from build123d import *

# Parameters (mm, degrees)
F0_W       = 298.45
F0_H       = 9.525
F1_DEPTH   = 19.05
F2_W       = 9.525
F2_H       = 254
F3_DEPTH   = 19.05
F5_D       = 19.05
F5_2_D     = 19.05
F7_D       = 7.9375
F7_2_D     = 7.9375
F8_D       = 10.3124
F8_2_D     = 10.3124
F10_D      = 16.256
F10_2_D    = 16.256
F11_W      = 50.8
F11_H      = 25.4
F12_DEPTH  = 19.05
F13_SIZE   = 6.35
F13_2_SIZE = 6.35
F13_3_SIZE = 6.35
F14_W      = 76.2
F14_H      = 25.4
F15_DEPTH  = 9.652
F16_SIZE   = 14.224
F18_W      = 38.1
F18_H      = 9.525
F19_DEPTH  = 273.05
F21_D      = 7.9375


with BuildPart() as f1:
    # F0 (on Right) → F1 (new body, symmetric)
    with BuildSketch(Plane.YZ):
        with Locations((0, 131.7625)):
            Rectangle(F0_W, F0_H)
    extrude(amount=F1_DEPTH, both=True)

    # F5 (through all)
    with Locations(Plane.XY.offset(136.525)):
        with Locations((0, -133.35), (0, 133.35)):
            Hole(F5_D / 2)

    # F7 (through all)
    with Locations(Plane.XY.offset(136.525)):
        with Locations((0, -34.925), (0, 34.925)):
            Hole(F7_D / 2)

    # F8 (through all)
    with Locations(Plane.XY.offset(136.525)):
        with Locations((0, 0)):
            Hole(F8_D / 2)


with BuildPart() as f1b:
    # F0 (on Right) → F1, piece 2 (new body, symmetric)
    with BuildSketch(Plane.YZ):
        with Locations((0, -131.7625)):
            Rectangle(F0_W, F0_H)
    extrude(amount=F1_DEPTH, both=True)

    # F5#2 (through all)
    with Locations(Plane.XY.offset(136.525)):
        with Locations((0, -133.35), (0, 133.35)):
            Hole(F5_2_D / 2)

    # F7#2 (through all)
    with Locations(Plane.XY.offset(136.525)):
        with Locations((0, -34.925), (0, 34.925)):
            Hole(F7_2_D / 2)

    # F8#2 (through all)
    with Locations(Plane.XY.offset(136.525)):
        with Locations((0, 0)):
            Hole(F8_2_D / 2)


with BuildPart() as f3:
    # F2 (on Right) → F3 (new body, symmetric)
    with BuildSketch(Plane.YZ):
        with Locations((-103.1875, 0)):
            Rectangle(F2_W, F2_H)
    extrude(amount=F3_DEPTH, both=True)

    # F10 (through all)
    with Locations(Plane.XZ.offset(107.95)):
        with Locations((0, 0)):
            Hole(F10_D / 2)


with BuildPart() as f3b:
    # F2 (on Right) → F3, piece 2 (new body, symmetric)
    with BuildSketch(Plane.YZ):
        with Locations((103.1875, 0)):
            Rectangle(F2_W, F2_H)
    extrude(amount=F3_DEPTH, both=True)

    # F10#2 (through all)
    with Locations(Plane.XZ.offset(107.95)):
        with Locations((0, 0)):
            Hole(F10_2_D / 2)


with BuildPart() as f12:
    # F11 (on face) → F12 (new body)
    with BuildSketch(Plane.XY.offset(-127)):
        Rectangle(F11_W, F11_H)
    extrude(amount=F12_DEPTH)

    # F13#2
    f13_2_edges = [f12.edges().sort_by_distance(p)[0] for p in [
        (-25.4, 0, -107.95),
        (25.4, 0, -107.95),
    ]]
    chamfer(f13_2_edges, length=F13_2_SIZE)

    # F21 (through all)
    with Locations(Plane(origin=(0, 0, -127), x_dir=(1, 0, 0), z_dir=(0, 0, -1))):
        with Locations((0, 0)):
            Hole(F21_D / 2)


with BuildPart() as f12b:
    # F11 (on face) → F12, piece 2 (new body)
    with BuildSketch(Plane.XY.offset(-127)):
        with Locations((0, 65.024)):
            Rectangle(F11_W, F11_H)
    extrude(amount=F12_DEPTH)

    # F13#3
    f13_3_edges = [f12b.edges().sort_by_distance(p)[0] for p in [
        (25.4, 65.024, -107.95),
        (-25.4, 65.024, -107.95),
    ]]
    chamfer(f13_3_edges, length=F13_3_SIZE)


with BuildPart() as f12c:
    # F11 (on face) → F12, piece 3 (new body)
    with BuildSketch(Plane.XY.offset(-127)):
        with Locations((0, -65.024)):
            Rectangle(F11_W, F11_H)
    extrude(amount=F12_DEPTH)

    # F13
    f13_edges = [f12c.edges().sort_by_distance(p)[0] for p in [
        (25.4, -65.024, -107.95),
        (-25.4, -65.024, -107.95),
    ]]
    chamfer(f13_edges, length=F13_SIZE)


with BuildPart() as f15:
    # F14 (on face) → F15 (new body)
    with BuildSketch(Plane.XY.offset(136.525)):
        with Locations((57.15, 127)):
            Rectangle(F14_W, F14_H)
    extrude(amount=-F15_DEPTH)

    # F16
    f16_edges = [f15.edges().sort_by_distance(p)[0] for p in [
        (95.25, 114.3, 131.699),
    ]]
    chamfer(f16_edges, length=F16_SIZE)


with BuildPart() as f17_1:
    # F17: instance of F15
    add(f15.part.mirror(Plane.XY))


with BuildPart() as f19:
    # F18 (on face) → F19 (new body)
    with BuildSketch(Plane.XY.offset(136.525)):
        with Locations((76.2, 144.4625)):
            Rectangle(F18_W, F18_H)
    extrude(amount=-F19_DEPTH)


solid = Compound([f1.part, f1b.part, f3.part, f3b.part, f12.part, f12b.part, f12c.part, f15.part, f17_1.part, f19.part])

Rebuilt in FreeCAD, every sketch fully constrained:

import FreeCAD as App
import Part
import Sketcher

V = App.Vector
Q = App.Units.Quantity


def edges_at(feature, points):
    """Names of the edges that pass closest to the given points."""
    edges = feature.Shape.Edges
    near = lambda p: min(range(len(edges)), key=lambda i: edges[i].distToShape(Part.Vertex(*p))[0])
    return sorted({f"Edge{near(p) + 1}" for p in points})

doc = App.newDocument("Part")
body = doc.addObject("PartDesign::Body", "Body")

sketch1 = body.newObject("Sketcher::SketchObject", "Sketch")
sketch1.AttachmentSupport = (doc.getObject("YZ_Plane"), [""])
sketch1.MapMode = "FlatFace"
sketch1.addGeometry(Part.LineSegment(V(-149, 137, 0), V(-149, 127, 0)), False)
sketch1.addGeometry(Part.LineSegment(V(-149, 127, 0), V(149, 127, 0)), False)
sketch1.addGeometry(Part.LineSegment(V(149, 127, 0), V(149, 137, 0)), False)
sketch1.addGeometry(Part.LineSegment(V(149, 137, 0), V(-149, 137, 0)), False)
sketch1.addConstraint(Sketcher.Constraint("Coincident", 0, 2, 1, 1))
sketch1.addConstraint(Sketcher.Constraint("Coincident", 1, 2, 2, 1))
sketch1.addConstraint(Sketcher.Constraint("Coincident", 2, 2, 3, 1))
sketch1.addConstraint(Sketcher.Constraint("Coincident", 3, 2, 0, 1))
sketch1.addConstraint(Sketcher.Constraint("Vertical", 0))
sketch1.addConstraint(Sketcher.Constraint("Horizontal", 1))
sketch1.addConstraint(Sketcher.Constraint("Vertical", 2))
sketch1.addConstraint(Sketcher.Constraint("Horizontal", 3))
sketch1.addConstraint(Sketcher.Constraint("DistanceY", -1, 1, 0, 2, Q("5 in")))
sketch1.addConstraint(Sketcher.Constraint("DistanceX", 1, 1, 1, 2, Q("11.75 in")))
sketch1.addConstraint(Sketcher.Constraint("DistanceY", 0, 2, 0, 1, Q("0.375 in")))
sketch1.addConstraint(Sketcher.Constraint("DistanceX", 0, 2, -1, 1, Q("5.875 in")))
pad1 = body.newObject("PartDesign::Pad", "Pad")
pad1.Profile = sketch1
pad1.Length = Q("1.5 in")
pad1.Midplane = True

sketch2 = body.newObject("Sketcher::SketchObject", "Sketch001")
sketch2.AttachmentSupport = (doc.getObject("XY_Plane"), [""])
sketch2.MapMode = "FlatFace"
sketch2.AttachmentOffset = App.Placement(V(0, 0, 5.375 * 25.4), App.Rotation())
sketch2.addGeometry(Part.Circle(V(0, -133, 0), V(0, 0, 1), 10), False)
sketch2.addGeometry(Part.Circle(V(0, 133, 0), V(0, 0, 1), 10), False)
sketch2.addConstraint(Sketcher.Constraint("Equal", 0, 1))
sketch2.addConstraint(Sketcher.Constraint("Symmetric", 0, 3, 1, 3, -1, 1))
sketch2.addConstraint(Sketcher.Constraint("PointOnObject", 0, 3, -2))
sketch2.addConstraint(Sketcher.Constraint("Diameter", 0, Q("0.75 in")))
sketch2.addConstraint(Sketcher.Constraint("DistanceY", 0, 3, 1, 3, Q("10.5 in")))
doc.recompute()
hole = body.newObject("PartDesign::Hole", "Hole")
hole.Profile = sketch2
hole.ThreadType = "None"
hole.Diameter = Q("0.75 in")
hole.DepthType = "ThroughAll"

sketch3 = body.newObject("Sketcher::SketchObject", "Sketch002")
sketch3.AttachmentSupport = (doc.getObject("XY_Plane"), [""])
sketch3.MapMode = "FlatFace"
sketch3.AttachmentOffset = App.Placement(V(0, 0, 5.375 * 25.4), App.Rotation())
sketch3.addGeometry(Part.Circle(V(0, -34.9, 0), V(0, 0, 1), 4), False)
sketch3.addGeometry(Part.Circle(V(0, 34.9, 0), V(0, 0, 1), 4), False)
sketch3.addConstraint(Sketcher.Constraint("Equal", 0, 1))
sketch3.addConstraint(Sketcher.Constraint("Symmetric", 0, 3, 1, 3, -1, 1))
sketch3.addConstraint(Sketcher.Constraint("PointOnObject", 0, 3, -2))
sketch3.addConstraint(Sketcher.Constraint("Diameter", 0, Q("0.3125 in")))
sketch3.addConstraint(Sketcher.Constraint("DistanceY", 0, 3, 1, 3, Q("2.75 in")))
doc.recompute()
hole2 = body.newObject("PartDesign::Hole", "Hole001")
hole2.Profile = sketch3
hole2.ThreadType = "None"
hole2.Diameter = Q("0.3125 in")
hole2.DepthType = "ThroughAll"

sketch4 = body.newObject("Sketcher::SketchObject", "Sketch003")
sketch4.AttachmentSupport = (doc.getObject("XY_Plane"), [""])
sketch4.MapMode = "FlatFace"
sketch4.AttachmentOffset = App.Placement(V(0, 0, 5.375 * 25.4), App.Rotation())
sketch4.addGeometry(Part.Circle(V(0, 0, 0), V(0, 0, 1), 5), False)
sketch4.addConstraint(Sketcher.Constraint("Coincident", 0, 3, -1, 1))
sketch4.addConstraint(Sketcher.Constraint("Diameter", 0, Q("0.406 in")))
doc.recompute()
hole3 = body.newObject("PartDesign::Hole", "Hole002")
hole3.Profile = sketch4
hole3.ThreadType = "None"
hole3.Diameter = Q("0.406 in")
hole3.DepthType = "ThroughAll"
body2 = doc.addObject("PartDesign::Body", "Body001")

sketch5 = body2.newObject("Sketcher::SketchObject", "Sketch004")
sketch5.AttachmentSupport = (doc.getObject("YZ_Plane001"), [""])
sketch5.MapMode = "FlatFace"
sketch5.addGeometry(Part.LineSegment(V(-149, -127, 0), V(-149, -137, 0)), False)
sketch5.addGeometry(Part.LineSegment(V(-149, -137, 0), V(149, -137, 0)), False)
sketch5.addGeometry(Part.LineSegment(V(149, -137, 0), V(149, -127, 0)), False)
sketch5.addGeometry(Part.LineSegment(V(149, -127, 0), V(-149, -127, 0)), False)
sketch5.addConstraint(Sketcher.Constraint("Coincident", 0, 2, 1, 1))
sketch5.addConstraint(Sketcher.Constraint("Coincident", 1, 2, 2, 1))
sketch5.addConstraint(Sketcher.Constraint("Coincident", 2, 2, 3, 1))
sketch5.addConstraint(Sketcher.Constraint("Coincident", 3, 2, 0, 1))
sketch5.addConstraint(Sketcher.Constraint("Vertical", 0))
sketch5.addConstraint(Sketcher.Constraint("Horizontal", 1))
sketch5.addConstraint(Sketcher.Constraint("Vertical", 2))
sketch5.addConstraint(Sketcher.Constraint("Horizontal", 3))
sketch5.addConstraint(Sketcher.Constraint("DistanceY", 2, 2, -1, 1, Q("5 in")))
sketch5.addConstraint(Sketcher.Constraint("DistanceX", 1, 1, 1, 2, Q("11.75 in")))
sketch5.addConstraint(Sketcher.Constraint("DistanceY", 0, 2, 0, 1, Q("0.375 in")))
sketch5.addConstraint(Sketcher.Constraint("DistanceX", 0, 2, -1, 1, Q("5.875 in")))
pad2 = body2.newObject("PartDesign::Pad", "Pad001")
pad2.Profile = sketch5
pad2.Length = Q("1.5 in")
pad2.Midplane = True

sketch6 = body2.newObject("Sketcher::SketchObject", "Sketch005")
sketch6.AttachmentSupport = (doc.getObject("XY_Plane001"), [""])
sketch6.MapMode = "FlatFace"
sketch6.AttachmentOffset = App.Placement(V(0, 0, 5.375 * 25.4), App.Rotation())
sketch6.addGeometry(Part.Circle(V(0, -133, 0), V(0, 0, 1), 10), False)
sketch6.addGeometry(Part.Circle(V(0, 133, 0), V(0, 0, 1), 10), False)
sketch6.addConstraint(Sketcher.Constraint("Equal", 0, 1))
sketch6.addConstraint(Sketcher.Constraint("Symmetric", 0, 3, 1, 3, -1, 1))
sketch6.addConstraint(Sketcher.Constraint("PointOnObject", 0, 3, -2))
sketch6.addConstraint(Sketcher.Constraint("Diameter", 0, Q("0.75 in")))
sketch6.addConstraint(Sketcher.Constraint("DistanceY", 0, 3, 1, 3, Q("10.5 in")))
doc.recompute()
hole4 = body2.newObject("PartDesign::Hole", "Hole003")
hole4.Profile = sketch6
hole4.ThreadType = "None"
hole4.Diameter = Q("0.75 in")
hole4.DepthType = "ThroughAll"

sketch7 = body2.newObject("Sketcher::SketchObject", "Sketch006")
sketch7.AttachmentSupport = (doc.getObject("XY_Plane001"), [""])
sketch7.MapMode = "FlatFace"
sketch7.AttachmentOffset = App.Placement(V(0, 0, 5.375 * 25.4), App.Rotation())
sketch7.addGeometry(Part.Circle(V(0, -34.9, 0), V(0, 0, 1), 4), False)
sketch7.addGeometry(Part.Circle(V(0, 34.9, 0), V(0, 0, 1), 4), False)
sketch7.addConstraint(Sketcher.Constraint("Equal", 0, 1))
sketch7.addConstraint(Sketcher.Constraint("Symmetric", 0, 3, 1, 3, -1, 1))
sketch7.addConstraint(Sketcher.Constraint("PointOnObject", 0, 3, -2))
sketch7.addConstraint(Sketcher.Constraint("Diameter", 0, Q("0.3125 in")))
sketch7.addConstraint(Sketcher.Constraint("DistanceY", 0, 3, 1, 3, Q("2.75 in")))
doc.recompute()
hole5 = body2.newObject("PartDesign::Hole", "Hole004")
hole5.Profile = sketch7
hole5.ThreadType = "None"
hole5.Diameter = Q("0.3125 in")
hole5.DepthType = "ThroughAll"

sketch8 = body2.newObject("Sketcher::SketchObject", "Sketch007")
sketch8.AttachmentSupport = (doc.getObject("XY_Plane001"), [""])
sketch8.MapMode = "FlatFace"
sketch8.AttachmentOffset = App.Placement(V(0, 0, 5.375 * 25.4), App.Rotation())
sketch8.addGeometry(Part.Circle(V(0, 0, 0), V(0, 0, 1), 5), False)
sketch8.addConstraint(Sketcher.Constraint("Coincident", 0, 3, -1, 1))
sketch8.addConstraint(Sketcher.Constraint("Diameter", 0, Q("0.406 in")))
doc.recompute()
hole6 = body2.newObject("PartDesign::Hole", "Hole005")
hole6.Profile = sketch8
hole6.ThreadType = "None"
hole6.Diameter = Q("0.406 in")
hole6.DepthType = "ThroughAll"
body3 = doc.addObject("PartDesign::Body", "Body002")

sketch9 = body3.newObject("Sketcher::SketchObject", "Sketch008")
sketch9.AttachmentSupport = (doc.getObject("YZ_Plane002"), [""])
sketch9.MapMode = "FlatFace"
sketch9.addGeometry(Part.LineSegment(V(-108, 127, 0), V(-108, -127, 0)), False)
sketch9.addGeometry(Part.LineSegment(V(-108, -127, 0), V(-98, -127, 0)), False)
sketch9.addGeometry(Part.LineSegment(V(-98, -127, 0), V(-98, 127, 0)), False)
sketch9.addGeometry(Part.LineSegment(V(-98, 127, 0), V(-108, 127, 0)), False)
sketch9.addConstraint(Sketcher.Constraint("Coincident", 0, 2, 1, 1))
sketch9.addConstraint(Sketcher.Constraint("Coincident", 1, 2, 2, 1))
sketch9.addConstraint(Sketcher.Constraint("Coincident", 2, 2, 3, 1))
sketch9.addConstraint(Sketcher.Constraint("Coincident", 3, 2, 0, 1))
sketch9.addConstraint(Sketcher.Constraint("Vertical", 0))
sketch9.addConstraint(Sketcher.Constraint("Horizontal", 1))
sketch9.addConstraint(Sketcher.Constraint("Vertical", 2))
sketch9.addConstraint(Sketcher.Constraint("Horizontal", 3))
sketch9.addConstraint(Sketcher.Constraint("DistanceY", 0, 2, 0, 1, Q("10 in")))
sketch9.addConstraint(Sketcher.Constraint("DistanceY", 0, 2, -1, 1, Q("5 in")))
sketch9.addConstraint(Sketcher.Constraint("DistanceX", 1, 1, 1, 2, Q("0.375 in")))
sketch9.addConstraint(Sketcher.Constraint("DistanceX", 0, 2, -1, 1, Q("4.25 in")))
pad3 = body3.newObject("PartDesign::Pad", "Pad002")
pad3.Profile = sketch9
pad3.Length = Q("1.5 in")
pad3.Midplane = True

sketch10 = body3.newObject("Sketcher::SketchObject", "Sketch009")
sketch10.AttachmentSupport = (doc.getObject("XZ_Plane002"), [""])
sketch10.MapMode = "FlatFace"
sketch10.AttachmentOffset = App.Placement(V(0, 0, 4.25 * 25.4), App.Rotation())
sketch10.addGeometry(Part.Circle(V(0, 0, 0), V(0, 0, 1), 8), False)
sketch10.addConstraint(Sketcher.Constraint("Coincident", 0, 3, -1, 1))
sketch10.addConstraint(Sketcher.Constraint("Diameter", 0, Q("0.64 in")))
doc.recompute()
hole7 = body3.newObject("PartDesign::Hole", "Hole006")
hole7.Profile = sketch10
hole7.ThreadType = "None"
hole7.Diameter = Q("0.64 in")
hole7.DepthType = "ThroughAll"
body4 = doc.addObject("PartDesign::Body", "Body003")

sketch11 = body4.newObject("Sketcher::SketchObject", "Sketch010")
sketch11.AttachmentSupport = (doc.getObject("YZ_Plane003"), [""])
sketch11.MapMode = "FlatFace"
sketch11.addGeometry(Part.LineSegment(V(98, 127, 0), V(98, -127, 0)), False)
sketch11.addGeometry(Part.LineSegment(V(98, -127, 0), V(108, -127, 0)), False)
sketch11.addGeometry(Part.LineSegment(V(108, -127, 0), V(108, 127, 0)), False)
sketch11.addGeometry(Part.LineSegment(V(108, 127, 0), V(98, 127, 0)), False)
sketch11.addConstraint(Sketcher.Constraint("Coincident", 0, 2, 1, 1))
sketch11.addConstraint(Sketcher.Constraint("Coincident", 1, 2, 2, 1))
sketch11.addConstraint(Sketcher.Constraint("Coincident", 2, 2, 3, 1))
sketch11.addConstraint(Sketcher.Constraint("Coincident", 3, 2, 0, 1))
sketch11.addConstraint(Sketcher.Constraint("Vertical", 0))
sketch11.addConstraint(Sketcher.Constraint("Horizontal", 1))
sketch11.addConstraint(Sketcher.Constraint("Vertical", 2))
sketch11.addConstraint(Sketcher.Constraint("Horizontal", 3))
sketch11.addConstraint(Sketcher.Constraint("DistanceY", 0, 2, 0, 1, Q("10 in")))
sketch11.addConstraint(Sketcher.Constraint("DistanceY", 0, 2, -1, 1, Q("5 in")))
sketch11.addConstraint(Sketcher.Constraint("DistanceX", 1, 1, 1, 2, Q("0.375 in")))
sketch11.addConstraint(Sketcher.Constraint("DistanceX", -1, 1, 1, 2, Q("4.25 in")))
pad4 = body4.newObject("PartDesign::Pad", "Pad003")
pad4.Profile = sketch11
pad4.Length = Q("1.5 in")
pad4.Midplane = True

sketch12 = body4.newObject("Sketcher::SketchObject", "Sketch011")
sketch12.AttachmentSupport = (doc.getObject("XZ_Plane003"), [""])
sketch12.MapMode = "FlatFace"
sketch12.AttachmentOffset = App.Placement(V(0, 0, 4.25 * 25.4), App.Rotation())
sketch12.addGeometry(Part.Circle(V(0, 0, 0), V(0, 0, 1), 8), False)
sketch12.addConstraint(Sketcher.Constraint("Coincident", 0, 3, -1, 1))
sketch12.addConstraint(Sketcher.Constraint("Diameter", 0, Q("0.64 in")))
doc.recompute()
hole8 = body4.newObject("PartDesign::Hole", "Hole007")
hole8.Profile = sketch12
hole8.ThreadType = "None"
hole8.Diameter = Q("0.64 in")
hole8.DepthType = "ThroughAll"
body5 = doc.addObject("PartDesign::Body", "Body004")

sketch13 = body5.newObject("Sketcher::SketchObject", "Sketch012")
sketch13.AttachmentSupport = (doc.getObject("XY_Plane004"), [""])
sketch13.MapMode = "FlatFace"
sketch13.AttachmentOffset = App.Placement(V(0, 0, -5 * 25.4), App.Rotation())
sketch13.addGeometry(Part.LineSegment(V(-25, 13, 0), V(-25, -13, 0)), False)
sketch13.addGeometry(Part.LineSegment(V(-25, -13, 0), V(25, -13, 0)), False)
sketch13.addGeometry(Part.LineSegment(V(25, -13, 0), V(25, 13, 0)), False)
sketch13.addGeometry(Part.LineSegment(V(25, 13, 0), V(-25, 13, 0)), False)
sketch13.addConstraint(Sketcher.Constraint("Coincident", 0, 2, 1, 1))
sketch13.addConstraint(Sketcher.Constraint("Coincident", 1, 2, 2, 1))
sketch13.addConstraint(Sketcher.Constraint("Coincident", 2, 2, 3, 1))
sketch13.addConstraint(Sketcher.Constraint("Coincident", 3, 2, 0, 1))
sketch13.addConstraint(Sketcher.Constraint("Vertical", 0))
sketch13.addConstraint(Sketcher.Constraint("Horizontal", 1))
sketch13.addConstraint(Sketcher.Constraint("Vertical", 2))
sketch13.addConstraint(Sketcher.Constraint("Horizontal", 3))
sketch13.addConstraint(Sketcher.Constraint("Symmetric", 0, 2, 2, 2, -1, 1))
sketch13.addConstraint(Sketcher.Constraint("DistanceX", 1, 1, 1, 2, Q("2 in")))
sketch13.addConstraint(Sketcher.Constraint("DistanceY", 0, 2, 0, 1, Q("1 in")))
pad5 = body5.newObject("PartDesign::Pad", "Pad004")
pad5.Profile = sketch13
pad5.Length = Q("0.75 in")
doc.recompute()

chamfer = body5.newObject("PartDesign::Chamfer", "Chamfer")
chamfer.Base = (pad5, edges_at(pad5, [(-25.4, 0, -107.95), (25.4, 0, -107.95)]))
chamfer.Size = Q("0.25 in")

sketch14 = body5.newObject("Sketcher::SketchObject", "Sketch013")
sketch14.AttachmentSupport = (doc.getObject("XY_Plane004"), [""])
sketch14.MapMode = "FlatFace"
sketch14.AttachmentOffset = App.Placement(V(0, 0, -5 * 25.4), App.Rotation())
sketch14.addGeometry(Part.Circle(V(0, 0, 0), V(0, 0, 1), 4), False)
sketch14.addConstraint(Sketcher.Constraint("Coincident", 0, 3, -1, 1))
sketch14.addConstraint(Sketcher.Constraint("Diameter", 0, Q("0.3125 in")))
doc.recompute()
hole9 = body5.newObject("PartDesign::Hole", "Hole008")
hole9.Profile = sketch14
hole9.ThreadType = "None"
hole9.Diameter = Q("0.3125 in")
hole9.DepthType = "ThroughAll"
hole9.Reversed = True
body6 = doc.addObject("PartDesign::Body", "Body005")

sketch15 = body6.newObject("Sketcher::SketchObject", "Sketch014")
sketch15.AttachmentSupport = (doc.getObject("XY_Plane005"), [""])
sketch15.MapMode = "FlatFace"
sketch15.AttachmentOffset = App.Placement(V(0, 0, -5 * 25.4), App.Rotation())
sketch15.addGeometry(Part.LineSegment(V(-25, 78, 0), V(-25, 52, 0)), False)
sketch15.addGeometry(Part.LineSegment(V(-25, 52, 0), V(25, 52, 0)), False)
sketch15.addGeometry(Part.LineSegment(V(25, 52, 0), V(25, 78, 0)), False)
sketch15.addGeometry(Part.LineSegment(V(25, 78, 0), V(-25, 78, 0)), False)
sketch15.addConstraint(Sketcher.Constraint("Coincident", 0, 2, 1, 1))
sketch15.addConstraint(Sketcher.Constraint("Coincident", 1, 2, 2, 1))
sketch15.addConstraint(Sketcher.Constraint("Coincident", 2, 2, 3, 1))
sketch15.addConstraint(Sketcher.Constraint("Coincident", 3, 2, 0, 1))
sketch15.addConstraint(Sketcher.Constraint("Vertical", 0))
sketch15.addConstraint(Sketcher.Constraint("Horizontal", 1))
sketch15.addConstraint(Sketcher.Constraint("Vertical", 2))
sketch15.addConstraint(Sketcher.Constraint("Horizontal", 3))
sketch15.addConstraint(Sketcher.Constraint("DistanceX", 1, 1, 1, 2, Q("2 in")))
sketch15.addConstraint(Sketcher.Constraint("DistanceY", 0, 2, 0, 1, Q("1 in")))
sketch15.addConstraint(Sketcher.Constraint("DistanceX", 0, 2, -1, 1, Q("1 in")))
sketch15.addConstraint(Sketcher.Constraint("DistanceY", -1, 1, 0, 2, Q("2.06 in")))
pad6 = body6.newObject("PartDesign::Pad", "Pad005")
pad6.Profile = sketch15
pad6.Length = Q("0.75 in")
doc.recompute()

chamfer2 = body6.newObject("PartDesign::Chamfer", "Chamfer001")
chamfer2.Base = (pad6, edges_at(pad6, [(25.4, 65.024, -107.95), (-25.4, 65.024, -107.95)]))
chamfer2.Size = Q("0.25 in")
body7 = doc.addObject("PartDesign::Body", "Body006")

sketch16 = body7.newObject("Sketcher::SketchObject", "Sketch015")
sketch16.AttachmentSupport = (doc.getObject("XY_Plane006"), [""])
sketch16.MapMode = "FlatFace"
sketch16.AttachmentOffset = App.Placement(V(0, 0, -5 * 25.4), App.Rotation())
sketch16.addGeometry(Part.LineSegment(V(-25, -52, 0), V(-25, -78, 0)), False)
sketch16.addGeometry(Part.LineSegment(V(-25, -78, 0), V(25, -78, 0)), False)
sketch16.addGeometry(Part.LineSegment(V(25, -78, 0), V(25, -52, 0)), False)
sketch16.addGeometry(Part.LineSegment(V(25, -52, 0), V(-25, -52, 0)), False)
sketch16.addConstraint(Sketcher.Constraint("Coincident", 0, 2, 1, 1))
sketch16.addConstraint(Sketcher.Constraint("Coincident", 1, 2, 2, 1))
sketch16.addConstraint(Sketcher.Constraint("Coincident", 2, 2, 3, 1))
sketch16.addConstraint(Sketcher.Constraint("Coincident", 3, 2, 0, 1))
sketch16.addConstraint(Sketcher.Constraint("Vertical", 0))
sketch16.addConstraint(Sketcher.Constraint("Horizontal", 1))
sketch16.addConstraint(Sketcher.Constraint("Vertical", 2))
sketch16.addConstraint(Sketcher.Constraint("Horizontal", 3))
sketch16.addConstraint(Sketcher.Constraint("DistanceX", 1, 1, 1, 2, Q("2 in")))
sketch16.addConstraint(Sketcher.Constraint("DistanceY", 0, 2, 0, 1, Q("1 in")))
sketch16.addConstraint(Sketcher.Constraint("DistanceX", 0, 2, -1, 1, Q("1 in")))
sketch16.addConstraint(Sketcher.Constraint("DistanceY", 0, 2, -1, 1, Q("3.06 in")))
pad7 = body7.newObject("PartDesign::Pad", "Pad006")
pad7.Profile = sketch16
pad7.Length = Q("0.75 in")
doc.recompute()

chamfer3 = body7.newObject("PartDesign::Chamfer", "Chamfer002")
chamfer3.Base = (pad7, edges_at(pad7, [(25.4, -65.024, -107.95), (-25.4, -65.024, -107.95)]))
chamfer3.Size = Q("0.25 in")
body8 = doc.addObject("PartDesign::Body", "Body007")

sketch17 = body8.newObject("Sketcher::SketchObject", "Sketch016")
sketch17.AttachmentSupport = (doc.getObject("XY_Plane007"), [""])
sketch17.MapMode = "FlatFace"
sketch17.AttachmentOffset = App.Placement(V(0, 0, 5.375 * 25.4), App.Rotation())
sketch17.addGeometry(Part.LineSegment(V(19, 140, 0), V(19, 114, 0)), False)
sketch17.addGeometry(Part.LineSegment(V(19, 114, 0), V(95, 114, 0)), False)
sketch17.addGeometry(Part.LineSegment(V(95, 114, 0), V(95, 140, 0)), False)
sketch17.addGeometry(Part.LineSegment(V(95, 140, 0), V(19, 140, 0)), False)
sketch17.addConstraint(Sketcher.Constraint("Coincident", 0, 2, 1, 1))
sketch17.addConstraint(Sketcher.Constraint("Coincident", 1, 2, 2, 1))
sketch17.addConstraint(Sketcher.Constraint("Coincident", 2, 2, 3, 1))
sketch17.addConstraint(Sketcher.Constraint("Coincident", 3, 2, 0, 1))
sketch17.addConstraint(Sketcher.Constraint("Vertical", 0))
sketch17.addConstraint(Sketcher.Constraint("Horizontal", 1))
sketch17.addConstraint(Sketcher.Constraint("Vertical", 2))
sketch17.addConstraint(Sketcher.Constraint("Horizontal", 3))
sketch17.addConstraint(Sketcher.Constraint("DistanceX", 1, 1, 1, 2, Q("3 in")))
sketch17.addConstraint(Sketcher.Constraint("DistanceY", 0, 2, 0, 1, Q("1 in")))
sketch17.addConstraint(Sketcher.Constraint("DistanceY", -1, 1, 0, 2, Q("4.5 in")))
sketch17.addConstraint(Sketcher.Constraint("DistanceX", -1, 1, 0, 2, Q("0.75 in")))
pad8 = body8.newObject("PartDesign::Pad", "Pad007")
pad8.Profile = sketch17
pad8.Length = Q("0.38 in")
pad8.Reversed = True
doc.recompute()

chamfer4 = body8.newObject("PartDesign::Chamfer", "Chamfer003")
chamfer4.Base = (pad8, edges_at(pad8, [(95.25, 114.3, 131.699)]))
chamfer4.Size = Q("0.56 in")
body9 = doc.addObject("PartDesign::Body", "Body008")
doc.recompute()

mirroring = doc.addObject("Part::Mirroring", "Mirroring")
mirroring.Source = body8
mirroring.Base = V(0, 0, 0)
mirroring.Normal = V(0, 0, 1)
body9.BaseFeature = mirroring
doc.recompute()
body10 = doc.addObject("PartDesign::Body", "Body009")

sketch18 = body10.newObject("Sketcher::SketchObject", "Sketch017")
sketch18.AttachmentSupport = (doc.getObject("XY_Plane009"), [""])
sketch18.MapMode = "FlatFace"
sketch18.AttachmentOffset = App.Placement(V(0, 0, 5.375 * 25.4), App.Rotation())
sketch18.addGeometry(Part.LineSegment(V(57, 149, 0), V(57, 140, 0)), False)
sketch18.addGeometry(Part.LineSegment(V(57, 140, 0), V(95, 140, 0)), False)
sketch18.addGeometry(Part.LineSegment(V(95, 140, 0), V(95, 149, 0)), False)
sketch18.addGeometry(Part.LineSegment(V(95, 149, 0), V(57, 149, 0)), False)
sketch18.addConstraint(Sketcher.Constraint("Coincident", 0, 2, 1, 1))
sketch18.addConstraint(Sketcher.Constraint("Coincident", 1, 2, 2, 1))
sketch18.addConstraint(Sketcher.Constraint("Coincident", 2, 2, 3, 1))
sketch18.addConstraint(Sketcher.Constraint("Coincident", 3, 2, 0, 1))
sketch18.addConstraint(Sketcher.Constraint("Vertical", 0))
sketch18.addConstraint(Sketcher.Constraint("Horizontal", 1))
sketch18.addConstraint(Sketcher.Constraint("Vertical", 2))
sketch18.addConstraint(Sketcher.Constraint("Horizontal", 3))
sketch18.addConstraint(Sketcher.Constraint("DistanceX", 1, 1, 1, 2, Q("1.5 in")))
sketch18.addConstraint(Sketcher.Constraint("DistanceY", -1, 1, 0, 2, Q("5.5 in")))
sketch18.addConstraint(Sketcher.Constraint("DistanceY", 0, 2, 0, 1, Q("0.375 in")))
sketch18.addConstraint(Sketcher.Constraint("DistanceX", -1, 1, 0, 2, Q("2.25 in")))
pad9 = body10.newObject("PartDesign::Pad", "Pad008")
pad9.Profile = sketch18
pad9.Length = Q("10.75 in")
pad9.Reversed = True
mirroring.Visibility = False

doc.recompute()
